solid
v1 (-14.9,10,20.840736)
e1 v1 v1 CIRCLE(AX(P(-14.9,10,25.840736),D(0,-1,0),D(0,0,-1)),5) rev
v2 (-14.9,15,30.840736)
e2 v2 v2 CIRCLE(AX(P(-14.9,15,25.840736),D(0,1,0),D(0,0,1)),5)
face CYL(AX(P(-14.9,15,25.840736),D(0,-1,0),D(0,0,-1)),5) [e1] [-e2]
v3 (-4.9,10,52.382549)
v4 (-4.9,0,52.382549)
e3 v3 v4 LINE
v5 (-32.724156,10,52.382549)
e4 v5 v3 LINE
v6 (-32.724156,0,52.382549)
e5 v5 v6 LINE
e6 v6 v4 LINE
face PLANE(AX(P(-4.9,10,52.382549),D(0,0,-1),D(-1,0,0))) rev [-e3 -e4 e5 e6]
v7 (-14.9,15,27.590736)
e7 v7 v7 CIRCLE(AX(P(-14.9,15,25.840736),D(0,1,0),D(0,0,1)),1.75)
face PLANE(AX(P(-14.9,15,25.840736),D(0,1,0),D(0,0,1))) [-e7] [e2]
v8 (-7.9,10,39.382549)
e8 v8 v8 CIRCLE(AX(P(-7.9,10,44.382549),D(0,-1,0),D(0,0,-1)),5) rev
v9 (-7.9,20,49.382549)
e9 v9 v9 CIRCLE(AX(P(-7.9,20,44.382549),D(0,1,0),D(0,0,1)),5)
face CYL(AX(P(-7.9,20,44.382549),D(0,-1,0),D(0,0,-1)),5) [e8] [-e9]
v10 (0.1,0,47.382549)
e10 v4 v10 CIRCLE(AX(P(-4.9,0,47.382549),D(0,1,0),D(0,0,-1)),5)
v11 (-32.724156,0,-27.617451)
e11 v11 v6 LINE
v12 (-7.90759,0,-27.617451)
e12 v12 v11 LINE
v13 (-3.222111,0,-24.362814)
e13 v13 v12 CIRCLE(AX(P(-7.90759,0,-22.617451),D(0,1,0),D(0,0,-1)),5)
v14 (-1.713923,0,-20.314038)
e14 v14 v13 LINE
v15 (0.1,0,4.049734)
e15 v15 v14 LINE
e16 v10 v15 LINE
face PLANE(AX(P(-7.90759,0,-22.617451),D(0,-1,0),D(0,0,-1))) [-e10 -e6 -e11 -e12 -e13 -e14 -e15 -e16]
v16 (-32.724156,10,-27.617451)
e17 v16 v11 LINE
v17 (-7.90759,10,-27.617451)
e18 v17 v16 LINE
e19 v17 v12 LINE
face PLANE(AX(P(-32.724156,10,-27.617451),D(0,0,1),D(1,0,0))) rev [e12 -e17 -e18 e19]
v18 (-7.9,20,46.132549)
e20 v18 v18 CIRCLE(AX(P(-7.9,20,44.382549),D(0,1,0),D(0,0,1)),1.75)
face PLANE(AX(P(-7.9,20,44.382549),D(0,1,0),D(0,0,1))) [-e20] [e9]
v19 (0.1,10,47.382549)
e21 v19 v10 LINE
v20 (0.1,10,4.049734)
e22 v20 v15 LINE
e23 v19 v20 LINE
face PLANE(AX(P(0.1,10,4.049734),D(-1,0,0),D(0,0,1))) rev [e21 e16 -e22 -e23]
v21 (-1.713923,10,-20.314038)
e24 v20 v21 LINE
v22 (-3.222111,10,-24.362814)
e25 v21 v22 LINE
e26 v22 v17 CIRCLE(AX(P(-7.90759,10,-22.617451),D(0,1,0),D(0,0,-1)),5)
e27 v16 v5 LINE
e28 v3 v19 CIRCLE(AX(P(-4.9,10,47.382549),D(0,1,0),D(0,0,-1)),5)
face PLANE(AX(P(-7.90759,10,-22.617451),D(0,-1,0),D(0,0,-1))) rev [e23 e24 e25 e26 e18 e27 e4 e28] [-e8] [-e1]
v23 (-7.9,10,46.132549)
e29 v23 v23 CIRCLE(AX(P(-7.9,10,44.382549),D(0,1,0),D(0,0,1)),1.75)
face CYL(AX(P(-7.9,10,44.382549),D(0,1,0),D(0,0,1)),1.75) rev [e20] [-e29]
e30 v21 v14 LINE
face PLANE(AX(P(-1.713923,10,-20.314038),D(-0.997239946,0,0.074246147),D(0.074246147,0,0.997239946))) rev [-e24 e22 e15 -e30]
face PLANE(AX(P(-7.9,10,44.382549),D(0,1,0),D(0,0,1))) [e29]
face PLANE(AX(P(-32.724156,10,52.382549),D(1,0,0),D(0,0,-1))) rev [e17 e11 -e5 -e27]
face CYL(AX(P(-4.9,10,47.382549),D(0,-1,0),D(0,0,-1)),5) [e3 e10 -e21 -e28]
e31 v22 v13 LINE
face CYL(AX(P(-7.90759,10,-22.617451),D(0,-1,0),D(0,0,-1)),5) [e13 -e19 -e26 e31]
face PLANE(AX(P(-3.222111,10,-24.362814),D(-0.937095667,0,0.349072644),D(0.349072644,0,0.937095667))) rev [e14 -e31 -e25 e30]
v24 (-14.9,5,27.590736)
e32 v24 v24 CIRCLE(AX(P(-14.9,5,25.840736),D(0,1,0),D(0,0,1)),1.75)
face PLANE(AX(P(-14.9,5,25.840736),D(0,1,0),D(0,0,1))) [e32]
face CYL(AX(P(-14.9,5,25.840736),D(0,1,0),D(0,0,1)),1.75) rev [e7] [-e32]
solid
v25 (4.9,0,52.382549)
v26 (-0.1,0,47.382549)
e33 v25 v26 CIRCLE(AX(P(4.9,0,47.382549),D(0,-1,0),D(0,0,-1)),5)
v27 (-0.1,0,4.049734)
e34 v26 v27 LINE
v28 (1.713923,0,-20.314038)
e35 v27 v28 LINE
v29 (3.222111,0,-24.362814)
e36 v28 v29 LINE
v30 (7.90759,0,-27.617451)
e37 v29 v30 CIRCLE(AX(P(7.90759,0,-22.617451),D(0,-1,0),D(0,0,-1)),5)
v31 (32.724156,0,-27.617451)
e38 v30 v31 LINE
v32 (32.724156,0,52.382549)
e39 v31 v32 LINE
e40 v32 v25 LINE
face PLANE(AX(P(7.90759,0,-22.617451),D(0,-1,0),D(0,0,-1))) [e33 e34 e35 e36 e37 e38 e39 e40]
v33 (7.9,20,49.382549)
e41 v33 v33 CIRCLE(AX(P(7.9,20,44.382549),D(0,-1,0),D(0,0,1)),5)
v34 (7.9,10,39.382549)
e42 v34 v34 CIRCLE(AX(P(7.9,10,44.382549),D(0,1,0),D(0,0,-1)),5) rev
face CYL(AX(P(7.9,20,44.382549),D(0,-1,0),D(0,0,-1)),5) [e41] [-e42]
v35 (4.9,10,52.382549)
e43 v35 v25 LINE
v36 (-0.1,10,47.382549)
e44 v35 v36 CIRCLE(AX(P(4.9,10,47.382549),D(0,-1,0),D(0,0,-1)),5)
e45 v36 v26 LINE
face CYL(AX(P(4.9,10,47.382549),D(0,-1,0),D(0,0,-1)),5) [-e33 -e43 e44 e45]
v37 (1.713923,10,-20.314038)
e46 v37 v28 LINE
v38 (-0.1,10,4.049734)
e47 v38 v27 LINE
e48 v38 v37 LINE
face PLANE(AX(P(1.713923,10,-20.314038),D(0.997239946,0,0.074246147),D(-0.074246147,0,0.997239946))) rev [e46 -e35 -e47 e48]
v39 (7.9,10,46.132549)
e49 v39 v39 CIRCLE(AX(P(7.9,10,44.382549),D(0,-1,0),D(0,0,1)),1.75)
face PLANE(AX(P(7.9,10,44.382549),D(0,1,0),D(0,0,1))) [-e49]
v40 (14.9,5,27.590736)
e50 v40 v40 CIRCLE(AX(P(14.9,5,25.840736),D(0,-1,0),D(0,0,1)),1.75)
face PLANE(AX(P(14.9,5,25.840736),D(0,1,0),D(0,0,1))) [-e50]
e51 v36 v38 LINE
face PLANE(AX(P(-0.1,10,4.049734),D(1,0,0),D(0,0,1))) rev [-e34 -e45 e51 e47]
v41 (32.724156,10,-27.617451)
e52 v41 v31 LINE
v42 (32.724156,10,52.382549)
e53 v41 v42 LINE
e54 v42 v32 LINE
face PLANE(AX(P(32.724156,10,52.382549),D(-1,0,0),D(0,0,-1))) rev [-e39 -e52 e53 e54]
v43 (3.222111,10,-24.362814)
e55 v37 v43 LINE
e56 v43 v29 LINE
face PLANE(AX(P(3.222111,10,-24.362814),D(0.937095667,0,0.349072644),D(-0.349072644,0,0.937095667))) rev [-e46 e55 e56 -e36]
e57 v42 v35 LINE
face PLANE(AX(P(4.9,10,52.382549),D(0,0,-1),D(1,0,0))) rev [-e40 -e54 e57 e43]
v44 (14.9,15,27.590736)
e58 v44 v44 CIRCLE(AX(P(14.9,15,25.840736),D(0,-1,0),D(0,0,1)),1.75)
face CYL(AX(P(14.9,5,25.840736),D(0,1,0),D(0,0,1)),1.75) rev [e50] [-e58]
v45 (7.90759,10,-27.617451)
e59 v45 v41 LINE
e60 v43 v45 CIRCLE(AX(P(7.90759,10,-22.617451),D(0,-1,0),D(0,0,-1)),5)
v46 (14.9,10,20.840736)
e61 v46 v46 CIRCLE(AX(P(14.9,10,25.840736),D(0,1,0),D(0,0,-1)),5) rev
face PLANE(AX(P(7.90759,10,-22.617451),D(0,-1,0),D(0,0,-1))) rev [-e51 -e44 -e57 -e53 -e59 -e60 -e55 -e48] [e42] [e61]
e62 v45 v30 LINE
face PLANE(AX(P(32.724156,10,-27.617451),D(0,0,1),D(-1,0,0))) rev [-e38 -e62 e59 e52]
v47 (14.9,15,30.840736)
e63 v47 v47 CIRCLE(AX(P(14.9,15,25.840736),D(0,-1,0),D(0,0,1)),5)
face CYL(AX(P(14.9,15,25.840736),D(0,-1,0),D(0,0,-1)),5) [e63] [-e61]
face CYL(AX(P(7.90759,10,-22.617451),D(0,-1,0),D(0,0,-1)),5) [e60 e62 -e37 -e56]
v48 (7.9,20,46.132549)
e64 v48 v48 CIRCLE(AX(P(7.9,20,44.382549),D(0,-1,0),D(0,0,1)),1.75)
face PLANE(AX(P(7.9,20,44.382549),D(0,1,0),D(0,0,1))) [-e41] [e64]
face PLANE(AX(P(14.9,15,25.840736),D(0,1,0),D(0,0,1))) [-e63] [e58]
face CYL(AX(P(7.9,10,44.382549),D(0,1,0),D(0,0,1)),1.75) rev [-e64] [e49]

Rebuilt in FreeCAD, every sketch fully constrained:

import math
import FreeCAD as App
import Part
import Sketcher

doc = App.newDocument("Part")
body = doc.addObject("PartDesign::Body", "Body")

sketch1 = body.newObject("Sketcher::SketchObject", "Sketch")
sketch1.AttachmentSupport = (doc.getObject("XZ_Plane"), [""])
sketch1.MapMode = "FlatFace"
sketch1.addGeometry([
    Part.LineSegment(App.Vector(-7.9, -27.6, 0), App.Vector(-32.7, -27.6, 0)),
    Part.LineSegment(App.Vector(-32.7, -27.6, 0), App.Vector(-32.7, 52.4, 0)),
    Part.LineSegment(App.Vector(-32.7, 52.4, 0), App.Vector(-4.9, 52.4, 0)),
    Part.ArcOfCircle(Part.Circle(App.Vector(-4.9, 47.4, 0), App.Vector(0, 0, 1), 5), math.radians(0), math.radians(90)),
    Part.LineSegment(App.Vector(0.1, 47.4, 0), App.Vector(0.1, 4, 0)),
    Part.LineSegment(App.Vector(0.1, 4, 0), App.Vector(-1.7, -20.3, 0)),
    Part.LineSegment(App.Vector(-1.7, -20.3, 0), App.Vector(-3.2, -24.4, 0)),
    Part.ArcOfCircle(Part.Circle(App.Vector(-7.9, -22.6, 0), App.Vector(0, 0, 1), 5), math.radians(-90), math.radians(-20)),
], False)
sketch1.addConstraint([
    Sketcher.Constraint("Coincident", 0, 2, 1, 1),
    Sketcher.Constraint("Coincident", 1, 2, 2, 1),
    Sketcher.Constraint("Tangent", 2, 2, 3, 2),
    Sketcher.Constraint("Tangent", 3, 1, 4, 1),
    Sketcher.Constraint("Coincident", 4, 2, 5, 1),
    Sketcher.Constraint("Coincident", 5, 2, 6, 1),
    Sketcher.Constraint("Tangent", 6, 2, 7, 2),
    Sketcher.Constraint("Tangent", 7, 1, 0, 1),
    Sketcher.Constraint("Horizontal", 0),
    Sketcher.Constraint("Vertical", 1),
    Sketcher.Constraint("Horizontal", 2),
    Sketcher.Constraint("Vertical", 4),
    Sketcher.Constraint("Equal", 3, 7),
    Sketcher.Constraint("Radius", 3, 5.0),
    Sketcher.Constraint("DistanceY", 1, 1, 1, 2, 80.0),
    Sketcher.Constraint("DistanceX", 3, 3, -1, 1, 4.9),
    Sketcher.Constraint("Distance", 6, 4.320559),
    Sketcher.Constraint("DistanceX", 0, 2, 0, 1, 24.816567),
    Sketcher.Constraint("DistanceX", 2, 1, 2, 2, 27.824156),
    Sketcher.Constraint("DistanceY", 4, 2, 4, 1, 43.332815),
    Sketcher.Constraint("DistanceY", -1, 1, 3, 3, 47.382549),
    Sketcher.Constraint("DistanceX", 6, 2, -1, 1, 3.222111),
])
pad1 = body.newObject("PartDesign::Pad", "Pad")
pad1.Profile = sketch1
pad1.Length = 10
pad1.Reversed = True

sketch2 = body.newObject("Sketcher::SketchObject", "Sketch001")
sketch2.AttachmentSupport = (doc.getObject("XZ_Plane"), [""])
sketch2.MapMode = "FlatFace"
sketch2.AttachmentOffset = App.Placement(App.Vector(0, 0, -10), App.Rotation())
sketch2.addGeometry(Part.Circle(App.Vector(-8, 44, 0), App.Vector(0, 0, 1), 5), False)
sketch2.addConstraint([
    Sketcher.Constraint("Diameter", 0, 10.0),
    Sketcher.Constraint("DistanceX", 0, 3, -1, 1, 7.9),
    Sketcher.Constraint("DistanceY", -1, 1, 0, 3, 44.382549),
])
pad2 = body.newObject("PartDesign::Pad", "Pad001")
pad2.Profile = sketch2
pad2.Length = 10
pad2.Reversed = True

sketch3 = body.newObject("Sketcher::SketchObject", "Sketch002")
sketch3.AttachmentSupport = (doc.getObject("XZ_Plane"), [""])
sketch3.MapMode = "FlatFace"
sketch3.AttachmentOffset = App.Placement(App.Vector(0, 0, -10), App.Rotation())
sketch3.addGeometry(Part.Circle(App.Vector(-15, 26, 0), App.Vector(0, 0, 1), 5), False)
sketch3.addConstraint([
    Sketcher.Constraint("Diameter", 0, 10.0),
    Sketcher.Constraint("DistanceX", 0, 3, -1, 1, 14.9),
    Sketcher.Constraint("DistanceY", -1, 1, 0, 3, 25.840736),
])
pad3 = body.newObject("PartDesign::Pad", "Pad002")
pad3.Profile = sketch3
pad3.Length = 5
pad3.Reversed = True

sketch4 = body.newObject("Sketcher::SketchObject", "Sketch003")
sketch4.AttachmentSupport = (doc.getObject("XZ_Plane"), [""])
sketch4.MapMode = "FlatFace"
sketch4.AttachmentOffset = App.Placement(App.Vector(0, 0, -20), App.Rotation())
sketch4.addGeometry(Part.Circle(App.Vector(-7.9, 44.4, 0), App.Vector(0, 0, 1), 1.8), False)
sketch4.addConstraint([
    Sketcher.Constraint("Diameter", 0, 3.5),
    Sketcher.Constraint("DistanceX", 0, 3, -1, 1, 7.9),
    Sketcher.Constraint("DistanceY", -1, 1, 0, 3, 44.382549),
])
pocket1 = body.newObject("PartDesign::Pocket", "Pocket")
pocket1.Profile = sketch4
pocket1.Length = 10
pocket1.Reversed = True

sketch5 = body.newObject("Sketcher::SketchObject", "Sketch004")
sketch5.AttachmentSupport = (doc.getObject("XZ_Plane"), [""])
sketch5.MapMode = "FlatFace"
sketch5.AttachmentOffset = App.Placement(App.Vector(0, 0, -15), App.Rotation())
sketch5.addGeometry(Part.Circle(App.Vector(-14.9, 25.8, 0), App.Vector(0, 0, 1), 1.8), False)
sketch5.addConstraint([
    Sketcher.Constraint("Diameter", 0, 3.5),
    Sketcher.Constraint("DistanceX", 0, 3, -1, 1, 14.9),
    Sketcher.Constraint("DistanceY", -1, 1, 0, 3, 25.840736),
])
pocket2 = body.newObject("PartDesign::Pocket", "Pocket001")
pocket2.Profile = sketch5
pocket2.Length = 10
pocket2.Reversed = True
body2 = doc.addObject("PartDesign::Body", "Body001")
doc.recompute()

mirroring = doc.addObject("Part::Mirroring", "Mirroring")
mirroring.Source = body
mirroring.Base = App.Vector(0, 0, 0)
mirroring.Normal = App.Vector(1, 0, 0)
body2.BaseFeature = mirroring
doc.recompute()
mirroring.Visibility = False

doc.recompute()
